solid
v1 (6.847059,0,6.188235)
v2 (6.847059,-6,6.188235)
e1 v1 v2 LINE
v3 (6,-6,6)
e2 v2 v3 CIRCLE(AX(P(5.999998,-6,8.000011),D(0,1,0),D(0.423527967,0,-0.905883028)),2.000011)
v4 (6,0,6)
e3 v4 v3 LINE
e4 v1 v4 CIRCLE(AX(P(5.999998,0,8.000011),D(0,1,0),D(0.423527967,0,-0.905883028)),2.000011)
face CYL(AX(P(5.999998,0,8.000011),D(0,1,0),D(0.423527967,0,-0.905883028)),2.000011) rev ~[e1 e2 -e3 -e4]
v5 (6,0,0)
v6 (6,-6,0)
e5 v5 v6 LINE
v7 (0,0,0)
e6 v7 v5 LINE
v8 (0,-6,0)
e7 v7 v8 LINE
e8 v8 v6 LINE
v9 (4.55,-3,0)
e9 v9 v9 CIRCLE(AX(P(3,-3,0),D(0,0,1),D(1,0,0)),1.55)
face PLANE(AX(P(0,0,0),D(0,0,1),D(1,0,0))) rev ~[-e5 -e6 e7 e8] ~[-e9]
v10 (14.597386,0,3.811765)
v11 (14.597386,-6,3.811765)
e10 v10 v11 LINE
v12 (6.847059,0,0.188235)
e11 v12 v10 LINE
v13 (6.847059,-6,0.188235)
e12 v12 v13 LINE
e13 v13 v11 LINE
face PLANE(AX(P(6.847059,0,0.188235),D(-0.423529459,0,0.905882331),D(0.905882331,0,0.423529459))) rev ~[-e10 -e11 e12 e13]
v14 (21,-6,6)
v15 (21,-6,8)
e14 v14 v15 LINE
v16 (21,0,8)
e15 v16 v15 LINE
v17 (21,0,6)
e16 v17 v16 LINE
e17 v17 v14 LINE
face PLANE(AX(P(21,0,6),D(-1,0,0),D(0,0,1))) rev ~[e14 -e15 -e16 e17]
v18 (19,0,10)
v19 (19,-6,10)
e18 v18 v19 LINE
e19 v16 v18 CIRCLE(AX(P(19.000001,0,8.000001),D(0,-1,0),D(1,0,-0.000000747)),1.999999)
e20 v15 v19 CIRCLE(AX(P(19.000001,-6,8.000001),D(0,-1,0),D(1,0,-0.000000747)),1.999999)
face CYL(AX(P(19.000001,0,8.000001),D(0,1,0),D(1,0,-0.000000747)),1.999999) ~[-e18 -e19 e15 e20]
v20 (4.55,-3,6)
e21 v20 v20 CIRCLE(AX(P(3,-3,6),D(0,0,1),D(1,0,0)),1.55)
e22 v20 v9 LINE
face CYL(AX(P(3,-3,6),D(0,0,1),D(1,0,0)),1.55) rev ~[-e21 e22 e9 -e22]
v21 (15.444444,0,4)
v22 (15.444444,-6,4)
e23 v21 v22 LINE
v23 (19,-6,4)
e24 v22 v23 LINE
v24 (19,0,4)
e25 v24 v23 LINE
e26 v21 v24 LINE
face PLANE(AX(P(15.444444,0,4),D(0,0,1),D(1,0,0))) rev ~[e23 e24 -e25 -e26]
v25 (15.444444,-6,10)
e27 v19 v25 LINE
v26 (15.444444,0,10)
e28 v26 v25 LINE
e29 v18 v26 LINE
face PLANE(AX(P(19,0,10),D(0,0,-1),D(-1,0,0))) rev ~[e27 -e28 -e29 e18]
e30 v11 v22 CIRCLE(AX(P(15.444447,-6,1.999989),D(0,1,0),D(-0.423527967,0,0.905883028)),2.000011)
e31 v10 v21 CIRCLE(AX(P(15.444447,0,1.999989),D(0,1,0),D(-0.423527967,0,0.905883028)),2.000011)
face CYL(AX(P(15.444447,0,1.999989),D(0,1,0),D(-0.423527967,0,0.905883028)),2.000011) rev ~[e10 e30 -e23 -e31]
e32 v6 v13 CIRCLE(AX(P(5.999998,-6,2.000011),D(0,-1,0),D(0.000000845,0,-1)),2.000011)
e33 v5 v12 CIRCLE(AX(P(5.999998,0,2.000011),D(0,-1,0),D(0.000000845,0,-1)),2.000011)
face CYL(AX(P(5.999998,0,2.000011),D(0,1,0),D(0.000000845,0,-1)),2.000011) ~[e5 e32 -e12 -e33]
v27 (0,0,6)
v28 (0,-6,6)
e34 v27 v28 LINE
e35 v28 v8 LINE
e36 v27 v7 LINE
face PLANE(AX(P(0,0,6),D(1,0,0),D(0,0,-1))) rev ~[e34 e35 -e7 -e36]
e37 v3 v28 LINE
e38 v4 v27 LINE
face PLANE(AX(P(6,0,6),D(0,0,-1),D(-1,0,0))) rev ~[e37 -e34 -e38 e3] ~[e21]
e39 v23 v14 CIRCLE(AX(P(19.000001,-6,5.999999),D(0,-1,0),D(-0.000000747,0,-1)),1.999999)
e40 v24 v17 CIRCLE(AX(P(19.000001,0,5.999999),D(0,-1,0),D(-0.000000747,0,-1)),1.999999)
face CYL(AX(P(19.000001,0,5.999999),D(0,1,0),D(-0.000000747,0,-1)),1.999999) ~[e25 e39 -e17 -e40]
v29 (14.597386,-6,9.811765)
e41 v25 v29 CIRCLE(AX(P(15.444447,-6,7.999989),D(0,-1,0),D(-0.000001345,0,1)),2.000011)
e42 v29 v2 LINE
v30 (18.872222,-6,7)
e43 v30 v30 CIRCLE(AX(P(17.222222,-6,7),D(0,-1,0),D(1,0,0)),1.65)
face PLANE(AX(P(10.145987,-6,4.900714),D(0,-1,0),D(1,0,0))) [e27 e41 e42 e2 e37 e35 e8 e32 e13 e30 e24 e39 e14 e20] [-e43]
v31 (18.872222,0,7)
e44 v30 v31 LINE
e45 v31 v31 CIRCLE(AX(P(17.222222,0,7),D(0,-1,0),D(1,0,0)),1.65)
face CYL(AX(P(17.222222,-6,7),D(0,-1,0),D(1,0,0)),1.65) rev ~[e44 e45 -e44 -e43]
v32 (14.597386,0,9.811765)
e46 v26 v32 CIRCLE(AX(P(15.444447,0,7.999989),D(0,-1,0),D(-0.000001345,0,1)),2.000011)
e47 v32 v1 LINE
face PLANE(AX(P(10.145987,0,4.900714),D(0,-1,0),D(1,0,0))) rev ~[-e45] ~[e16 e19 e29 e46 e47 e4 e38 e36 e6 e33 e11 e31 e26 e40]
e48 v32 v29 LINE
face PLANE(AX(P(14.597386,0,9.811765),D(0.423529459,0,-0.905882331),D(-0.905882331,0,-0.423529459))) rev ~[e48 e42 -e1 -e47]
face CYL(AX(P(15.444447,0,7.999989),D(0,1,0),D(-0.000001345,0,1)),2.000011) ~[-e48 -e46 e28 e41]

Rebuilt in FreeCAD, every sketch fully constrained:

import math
import FreeCAD as App
import Part
import Sketcher
from FreeCAD import Vector
Q = App.Units.Quantity

doc = App.newDocument("Part")
body = doc.addObject("PartDesign::Body", "Body")

sketch1 = doc.addObject("Sketcher::SketchObject", "Sketch")
body.addObject(sketch1)
sketch1.AttachmentSupport = (doc.XZ_Plane, [""])
sketch1.MapMode = "FlatFace"
sketch1.addGeometry(Part.LineSegment(Vector(0, 6, 0), Vector(0, 0, 0)), False)
sketch1.addGeometry(Part.LineSegment(Vector(0, 0, 0), Vector(6, 0, 0)), False)
sketch1.addGeometry(Part.ArcOfCircle(Part.Circle(Vector(6, 2, 0), Vector(0, 0, 1), 2), math.radians(-90), math.radians(-65)), False)
sketch1.addGeometry(Part.LineSegment(Vector(6.8, 0.2, 0), Vector(14.6, 3.8, 0)), False)
sketch1.addGeometry(Part.ArcOfCircle(Part.Circle(Vector(15.4, 2, 0), Vector(0, 0, 1), 2), math.radians(90), math.radians(115)), False)
sketch1.addGeometry(Part.LineSegment(Vector(15.4, 4, 0), Vector(19, 4, 0)), False)
sketch1.addGeometry(Part.ArcOfCircle(Part.Circle(Vector(19, 6, 0), Vector(0, 0, 1), 2), math.radians(-90), math.radians(0)), False)
sketch1.addGeometry(Part.LineSegment(Vector(21, 6, 0), Vector(21, 8, 0)), False)
sketch1.addGeometry(Part.ArcOfCircle(Part.Circle(Vector(19, 8, 0), Vector(0, 0, 1), 2), math.radians(0), math.radians(90)), False)
sketch1.addGeometry(Part.LineSegment(Vector(19, 10, 0), Vector(15.4, 10, 0)), False)
sketch1.addGeometry(Part.ArcOfCircle(Part.Circle(Vector(15.4, 8, 0), Vector(0, 0, 1), 2), math.radians(90), math.radians(115)), False)
sketch1.addGeometry(Part.LineSegment(Vector(14.6, 9.8, 0), Vector(6.8, 6.2, 0)), False)
sketch1.addGeometry(Part.ArcOfCircle(Part.Circle(Vector(6, 8, 0), Vector(0, 0, 1), 2), math.radians(-90), math.radians(-65)), False)
sketch1.addGeometry(Part.LineSegment(Vector(6, 6, 0), Vector(0, 6, 0)), False)
sketch1.addConstraint(Sketcher.Constraint("Coincident", 0, 2, 1, 1))
sketch1.addConstraint(Sketcher.Constraint("Tangent", 1, 2, 2, 1))
sketch1.addConstraint(Sketcher.Constraint("Tangent", 2, 2, 3, 1))
sketch1.addConstraint(Sketcher.Constraint("Tangent", 3, 2, 4, 2))
sketch1.addConstraint(Sketcher.Constraint("Tangent", 4, 1, 5, 1))
sketch1.addConstraint(Sketcher.Constraint("Tangent", 5, 2, 6, 1))
sketch1.addConstraint(Sketcher.Constraint("Tangent", 6, 2, 7, 1))
sketch1.addConstraint(Sketcher.Constraint("Tangent", 7, 2, 8, 1))
sketch1.addConstraint(Sketcher.Constraint("Tangent", 8, 2, 9, 1))
sketch1.addConstraint(Sketcher.Constraint("Tangent", 9, 2, 10, 1))
sketch1.addConstraint(Sketcher.Constraint("Tangent", 10, 2, 11, 1))
sketch1.addConstraint(Sketcher.Constraint("Tangent", 11, 2, 12, 2))
sketch1.addConstraint(Sketcher.Constraint("Tangent", 12, 1, 13, 1))
sketch1.addConstraint(Sketcher.Constraint("Coincident", 13, 2, 0, 1))
sketch1.addConstraint(Sketcher.Constraint("Vertical", 0))
sketch1.addConstraint(Sketcher.Constraint("Horizontal", 1))
sketch1.addConstraint(Sketcher.Constraint("Horizontal", 5))
sketch1.addConstraint(Sketcher.Constraint("Vertical", 7))
sketch1.addConstraint(Sketcher.Constraint("Horizontal", 9))
sketch1.addConstraint(Sketcher.Constraint("Horizontal", 13))
sketch1.addConstraint(Sketcher.Constraint("Coincident", 0, 2, -1, 1))
sketch1.addConstraint(Sketcher.Constraint("Equal", 2, 4))
sketch1.addConstraint(Sketcher.Constraint("Equal", 6, 8))
sketch1.addConstraint(Sketcher.Constraint("Equal", 4, 10))
sketch1.addConstraint(Sketcher.Constraint("Equal", 10, 12))
sketch1.addConstraint(Sketcher.Constraint("Parallel", 3, 11))
sketch1.addConstraint(Sketcher.Constraint("Horizontal", 6, 2, 12, 1))
sketch1.addConstraint(Sketcher.Constraint("Vertical", 4, 3, 10, 3))
sketch1.addConstraint(Sketcher.Constraint("Vertical", 2, 3, 12, 3))
sketch1.addConstraint(Sketcher.Constraint("Equal", 13, 0))
sketch1.addConstraint(Sketcher.Constraint("Radius", 6, Q("1.999999 mm")))
sketch1.addConstraint(Sketcher.Constraint("DistanceX", 1, 1, 1, 2, Q("6 mm")))
sketch1.addConstraint(Sketcher.Constraint("DistanceX", -1, 1, 6, 3, Q("19.000001 mm")))
sketch1.addConstraint(Sketcher.Constraint("Radius", 2, Q("2.000011 mm")))
sketch1.addConstraint(Sketcher.Constraint("DistanceX", 5, 1, 5, 2, Q("3.555556 mm")))
pad1 = doc.addObject("PartDesign::Pad", "Pad")
body.addObject(pad1)
pad1.Profile = sketch1
pad1.Length = 6

sketch2 = doc.addObject("Sketcher::SketchObject", "Sketch001")
body.addObject(sketch2)
sketch2.AttachmentSupport = (doc.XY_Plane, [""])
sketch2.MapMode = "FlatFace"
sketch2.AttachmentOffset = App.Placement(Vector(0, 0, 6), App.Rotation())
sketch2.addGeometry(Part.Circle(Vector(3, -3, 0), Vector(0, 0, 1), 1.6), False)
sketch2.addConstraint(Sketcher.Constraint("Diameter", 0, Q("3.1 mm")))
sketch2.addConstraint(Sketcher.Constraint("DistanceX", -1, 1, 0, 3, Q("3 mm")))
sketch2.addConstraint(Sketcher.Constraint("DistanceY", 0, 3, -1, 1, Q("3 mm")))
pocket1 = doc.addObject("PartDesign::Pocket", "Pocket")
body.addObject(pocket1)
pocket1.Profile = sketch2
pocket1.Type = "ThroughAll"

sketch3 = doc.addObject("Sketcher::SketchObject", "Sketch002")
body.addObject(sketch3)
sketch3.AttachmentSupport = (doc.XZ_Plane, [""])
sketch3.MapMode = "FlatFace"
sketch3.AttachmentOffset = App.Placement(Vector(0, 0, 6), App.Rotation())
sketch3.addGeometry(Part.Circle(Vector(17.2, 7, 0), Vector(0, 0, 1), 1.6), False)
sketch3.addConstraint(Sketcher.Constraint("Diameter", 0, Q("3.3 mm")))
sketch3.addConstraint(Sketcher.Constraint("DistanceY", -1, 1, 0, 3, Q("7 mm")))
sketch3.addConstraint(Sketcher.Constraint("DistanceX", -1, 1, 0, 3, Q("17.222222 mm")))
pocket2 = doc.addObject("PartDesign::Pocket", "Pocket001")
body.addObject(pocket2)
pocket2.Profile = sketch3
pocket2.Type = "ThroughAll"

doc.recompute()
